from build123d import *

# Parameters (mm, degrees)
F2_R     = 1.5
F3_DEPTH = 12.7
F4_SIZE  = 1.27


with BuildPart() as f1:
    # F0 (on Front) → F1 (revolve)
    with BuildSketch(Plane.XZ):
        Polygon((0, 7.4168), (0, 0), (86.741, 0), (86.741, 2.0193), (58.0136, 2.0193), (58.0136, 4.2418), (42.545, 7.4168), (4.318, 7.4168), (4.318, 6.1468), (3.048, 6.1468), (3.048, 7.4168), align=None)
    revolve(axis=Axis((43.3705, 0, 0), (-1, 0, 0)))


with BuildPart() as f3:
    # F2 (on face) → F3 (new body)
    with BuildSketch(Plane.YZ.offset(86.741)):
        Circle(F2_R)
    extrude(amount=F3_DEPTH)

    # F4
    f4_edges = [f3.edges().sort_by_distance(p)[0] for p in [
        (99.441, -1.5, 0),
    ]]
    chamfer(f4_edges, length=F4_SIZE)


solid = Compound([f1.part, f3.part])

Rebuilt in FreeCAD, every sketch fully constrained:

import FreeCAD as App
import Part
import Sketcher
from FreeCAD import Vector
Q = App.Units.Quantity


def edges_at(feature, points):
    """Names of the edges that pass closest to the given points."""
    edges = feature.Shape.Edges
    near = lambda p: min(range(len(edges)), key=lambda i: edges[i].distToShape(Part.Vertex(*p))[0])
    return sorted({f"Edge{near(p) + 1}" for p in points})


def add_polygon(sketch, points):
    """Adds a closed chain of lines whose ends are joined by coincident constraints."""
    first, n = sketch.GeometryCount, len(points)
    for a, b in zip(points, points[1:] + points[:1]):
        sketch.addGeometry(Part.LineSegment(App.Vector(*a, 0), App.Vector(*b, 0)), False)
    for i in range(n):
        sketch.addConstraint(Sketcher.Constraint("Coincident", first + i, 2, first + (i + 1) % n, 1))

doc = App.newDocument("Part")
body = doc.addObject("PartDesign::Body", "Body")

# Sketch on XZ plane
sketch1 = doc.addObject("Sketcher::SketchObject", "Sketch")
body.addObject(sketch1)
sketch1.AttachmentSupport = (doc.XZ_Plane, [""])
sketch1.MapMode = "FlatFace"
add_polygon(sketch1, [(0, 7.4), (0, 0), (86.7, 0), (86.7, 2), (58, 2), (58, 4.2), (42.5, 7.4), (4.3, 7.4), (4.3, 6.1), (3, 6.1), (3, 7.4)])  # lines 0-10
sketch1.addConstraint([
    Sketcher.Constraint("Vertical", 0),
    Sketcher.Constraint("Horizontal", 1),
    Sketcher.Constraint("Vertical", 2),
    Sketcher.Constraint("Horizontal", 3),
    Sketcher.Constraint("Vertical", 4),
    Sketcher.Constraint("Horizontal", 6),
    Sketcher.Constraint("Vertical", 7),
    Sketcher.Constraint("Horizontal", 8),
    Sketcher.Constraint("Vertical", 9),
    Sketcher.Constraint("Horizontal", 10),
    Sketcher.Constraint("Coincident", 0, 2, -1, 1),
    Sketcher.Constraint("Horizontal", 6, 2, 9, 2),
    Sketcher.Constraint("Equal", 8, 7),
    Sketcher.Constraint("DistanceX", 8, 2, 8, 1, Q("0.05 in")),
    Sketcher.Constraint("DistanceX", 10, 2, 10, 1, Q("0.12 in")),
    Sketcher.Constraint("DistanceX", 1, 1, 1, 2, Q("3.415 in")),
    Sketcher.Constraint("DistanceX", 3, 2, 3, 1, Q("1.131 in")),
    Sketcher.Constraint("DistanceX", 6, 2, 6, 1, Q("1.505 in")),
    Sketcher.Constraint("DistanceY", 0, 2, 0, 1, Q("0.292 in")),
    Sketcher.Constraint("DistanceY", 2, 1, 2, 2, Q("0.0795 in")),
    Sketcher.Constraint("DistanceY", 4, 1, 4, 2, Q("0.0875 in")),
])
revolution = doc.addObject("PartDesign::Revolution", "Revolution")
body.addObject(revolution)
revolution.Profile = sketch1
revolution.ReferenceAxis = (sketch1, ["H_Axis"])
revolution.Angle = 360
body2 = doc.addObject("PartDesign::Body", "Body001")

# Sketch on YZ plane
sketch2 = doc.addObject("Sketcher::SketchObject", "Sketch001")
body2.addObject(sketch2)
sketch2.AttachmentSupport = (doc.getObject("YZ_Plane001"), [""])
sketch2.MapMode = "FlatFace"
sketch2.AttachmentOffset = App.Placement(Vector(0, 0, 3.415 * 25.4), App.Rotation())
sketch2.addGeometry(Part.Circle(Vector(0, 0, 0), Vector(0, 0, 1), 1.5), False)
sketch2.addConstraint([
    Sketcher.Constraint("Coincident", 0, 3, -1, 1),
    Sketcher.Constraint("Diameter", 0, Q("3 mm")),
])
pad1 = doc.addObject("PartDesign::Pad", "Pad")
body2.addObject(pad1)
pad1.Profile = sketch2
pad1.Length = Q("0.5 in")
doc.recompute()

chamfer = doc.addObject("PartDesign::Chamfer", "Chamfer")
body2.addObject(chamfer)
chamfer.Base = (pad1, edges_at(pad1, [(99.441, -1.5, 0)]))
chamfer.Size = Q("0.05 in")

doc.recompute()
